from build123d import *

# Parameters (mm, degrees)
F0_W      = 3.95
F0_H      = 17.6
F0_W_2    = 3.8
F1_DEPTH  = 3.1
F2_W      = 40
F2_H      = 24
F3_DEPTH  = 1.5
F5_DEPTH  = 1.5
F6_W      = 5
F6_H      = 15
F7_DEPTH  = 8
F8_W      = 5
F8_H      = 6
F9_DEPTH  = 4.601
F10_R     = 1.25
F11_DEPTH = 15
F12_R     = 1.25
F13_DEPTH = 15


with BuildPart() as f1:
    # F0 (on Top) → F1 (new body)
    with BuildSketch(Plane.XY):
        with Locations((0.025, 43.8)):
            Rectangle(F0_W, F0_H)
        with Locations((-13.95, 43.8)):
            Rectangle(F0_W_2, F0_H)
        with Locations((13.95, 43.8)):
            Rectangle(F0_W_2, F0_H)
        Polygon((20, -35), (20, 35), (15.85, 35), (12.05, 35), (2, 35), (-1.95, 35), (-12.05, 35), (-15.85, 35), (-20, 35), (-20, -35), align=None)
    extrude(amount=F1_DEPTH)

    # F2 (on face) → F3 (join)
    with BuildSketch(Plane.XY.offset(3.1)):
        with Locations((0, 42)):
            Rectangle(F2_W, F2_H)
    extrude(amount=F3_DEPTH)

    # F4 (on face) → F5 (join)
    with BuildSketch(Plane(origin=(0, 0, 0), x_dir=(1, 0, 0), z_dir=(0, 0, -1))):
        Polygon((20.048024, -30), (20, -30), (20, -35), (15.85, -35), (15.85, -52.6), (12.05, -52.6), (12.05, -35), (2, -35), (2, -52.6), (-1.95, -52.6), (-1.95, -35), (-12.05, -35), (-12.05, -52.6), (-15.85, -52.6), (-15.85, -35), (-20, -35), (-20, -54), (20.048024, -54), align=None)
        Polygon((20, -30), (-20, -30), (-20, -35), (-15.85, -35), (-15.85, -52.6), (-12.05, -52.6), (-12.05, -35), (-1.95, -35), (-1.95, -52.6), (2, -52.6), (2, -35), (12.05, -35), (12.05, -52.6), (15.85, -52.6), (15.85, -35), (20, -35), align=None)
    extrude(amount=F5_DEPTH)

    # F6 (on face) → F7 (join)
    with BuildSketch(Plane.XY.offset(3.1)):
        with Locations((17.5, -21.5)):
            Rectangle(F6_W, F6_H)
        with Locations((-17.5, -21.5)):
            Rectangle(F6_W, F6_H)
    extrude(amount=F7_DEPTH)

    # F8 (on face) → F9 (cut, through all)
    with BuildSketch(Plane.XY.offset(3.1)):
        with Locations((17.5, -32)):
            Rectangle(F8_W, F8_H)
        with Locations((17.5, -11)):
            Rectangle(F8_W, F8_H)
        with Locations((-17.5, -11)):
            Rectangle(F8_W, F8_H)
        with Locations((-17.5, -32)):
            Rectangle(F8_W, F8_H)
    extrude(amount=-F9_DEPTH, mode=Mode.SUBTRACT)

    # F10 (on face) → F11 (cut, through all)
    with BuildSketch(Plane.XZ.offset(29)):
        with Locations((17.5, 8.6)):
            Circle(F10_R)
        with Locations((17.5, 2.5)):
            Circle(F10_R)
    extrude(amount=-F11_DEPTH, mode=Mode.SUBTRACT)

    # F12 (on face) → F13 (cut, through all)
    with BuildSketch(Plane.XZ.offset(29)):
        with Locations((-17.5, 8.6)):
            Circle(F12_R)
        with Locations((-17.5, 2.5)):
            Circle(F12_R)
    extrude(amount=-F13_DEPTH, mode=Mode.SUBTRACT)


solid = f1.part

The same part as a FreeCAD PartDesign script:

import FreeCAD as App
import Part
import Sketcher


def add_polygon(sketch, points):
    """Adds a closed chain of lines whose ends are joined by coincident constraints."""
    first, n = sketch.GeometryCount, len(points)
    for a, b in zip(points, points[1:] + points[:1]):
        sketch.addGeometry(Part.LineSegment(App.Vector(*a, 0), App.Vector(*b, 0)), False)
    for i in range(n):
        sketch.addConstraint(Sketcher.Constraint("Coincident", first + i, 2, first + (i + 1) % n, 1))

doc = App.newDocument("Part")
body = doc.addObject("PartDesign::Body", "Body")

# Sketch on XY plane
sketch1 = body.newObject("Sketcher::SketchObject", "Sketch")
sketch1.AttachmentSupport = (doc.getObject("XY_Plane"), [""])
sketch1.MapMode = "FlatFace"
add_polygon(sketch1, [(-1.9, 52.6), (-1.9, 35), (-12.1, 35), (-12.1, 52.6), (-15.8, 52.6), (-15.8, 35), (-20, 35), (-20, -35), (20, -35), (20, 35), (15.8, 35), (15.8, 52.6), (12.1, 52.6), (12.1, 35), (2, 35), (2, 52.6)])  # lines 0-15
sketch1.addConstraint(Sketcher.Constraint("Vertical", 0))
sketch1.addConstraint(Sketcher.Constraint("Horizontal", 1))
sketch1.addConstraint(Sketcher.Constraint("Vertical", 2))
sketch1.addConstraint(Sketcher.Constraint("Horizontal", 3))
sketch1.addConstraint(Sketcher.Constraint("Vertical", 4))
sketch1.addConstraint(Sketcher.Constraint("Horizontal", 5))
sketch1.addConstraint(Sketcher.Constraint("Vertical", 6))
sketch1.addConstraint(Sketcher.Constraint("Horizontal", 7))
sketch1.addConstraint(Sketcher.Constraint("Vertical", 8))
sketch1.addConstraint(Sketcher.Constraint("Horizontal", 9))
sketch1.addConstraint(Sketcher.Constraint("Vertical", 10))
sketch1.addConstraint(Sketcher.Constraint("Horizontal", 11))
sketch1.addConstraint(Sketcher.Constraint("Vertical", 12))
sketch1.addConstraint(Sketcher.Constraint("Horizontal", 13))
sketch1.addConstraint(Sketcher.Constraint("Vertical", 14))
sketch1.addConstraint(Sketcher.Constraint("Horizontal", 15))
sketch1.addConstraint(Sketcher.Constraint("Symmetric", 5, 2, 7, 2, -1, 1))
sketch1.addConstraint(Sketcher.Constraint("Symmetric", 4, 2, 9, 2, -2))
sketch1.addConstraint(Sketcher.Constraint("Symmetric", 2, 2, 11, 2, -2))
sketch1.addConstraint(Sketcher.Constraint("Horizontal", 1, 2, 4, 2))
sketch1.addConstraint(Sketcher.Constraint("Horizontal", 9, 2, 12, 2))
sketch1.addConstraint(Sketcher.Constraint("Horizontal", 11, 2, 14, 2))
sketch1.addConstraint(Sketcher.Constraint("DistanceX", 7, 1, 7, 2, 40.0))
sketch1.addConstraint(Sketcher.Constraint("DistanceY", 6, 2, 6, 1, 70.0))
sketch1.addConstraint(Sketcher.Constraint("DistanceX", 1, 2, 1, 1, 10.1))
sketch1.addConstraint(Sketcher.Constraint("DistanceX", 3, 2, 3, 1, 3.8))
sketch1.addConstraint(Sketcher.Constraint("DistanceY", 0, 2, 0, 1, 17.6))
sketch1.addConstraint(Sketcher.Constraint("DistanceX", -1, 1, 13, 2, 2.0))
sketch1.addConstraint(Sketcher.Constraint("DistanceX", 0, 2, 11, 2, 14.0))
pad1 = body.newObject("PartDesign::Pad", "Pad")
pad1.Profile = sketch1
pad1.Length = 3.1

# Sketch on XY plane
sketch2 = body.newObject("Sketcher::SketchObject", "Sketch001")
sketch2.AttachmentSupport = (doc.getObject("XY_Plane"), [""])
sketch2.MapMode = "FlatFace"
sketch2.AttachmentOffset = App.Placement(App.Vector(0, 0, 3.1), App.Rotation())
add_polygon(sketch2, [(-20, 54), (-20, 30), (20, 30), (20, 54)])  # lines 0-3
sketch2.addConstraint(Sketcher.Constraint("Vertical", 0))
sketch2.addConstraint(Sketcher.Constraint("Horizontal", 1))
sketch2.addConstraint(Sketcher.Constraint("Vertical", 2))
sketch2.addConstraint(Sketcher.Constraint("Horizontal", 3))
sketch2.addConstraint(Sketcher.Constraint("DistanceX", 1, 1, 1, 2, 40.0))
sketch2.addConstraint(Sketcher.Constraint("DistanceY", 0, 2, 0, 1, 24.0))
sketch2.addConstraint(Sketcher.Constraint("DistanceX", 0, 2, -1, 1, 20.0))
sketch2.addConstraint(Sketcher.Constraint("DistanceY", -1, 1, 0, 2, 30.0))
pad2 = body.newObject("PartDesign::Pad", "Pad001")
pad2.Profile = sketch2
pad2.Length = 1.5

# Sketch on XY plane
sketch3 = body.newObject("Sketcher::SketchObject", "Sketch002")
sketch3.AttachmentSupport = (doc.getObject("XY_Plane"), [""])
sketch3.MapMode = "FlatFace"
add_polygon(sketch3, [(20, 30), (-20, 30), (-20, 54), (20, 54)])  # lines 0-3
sketch3.addConstraint(Sketcher.Constraint("Horizontal", 0))
sketch3.addConstraint(Sketcher.Constraint("Vertical", 1))
sketch3.addConstraint(Sketcher.Constraint("Horizontal", 2))
sketch3.addConstraint(Sketcher.Constraint("Vertical", 3))
sketch3.addConstraint(Sketcher.Constraint("DistanceY", 1, 1, 1, 2, 24.0))
sketch3.addConstraint(Sketcher.Constraint("DistanceX", 0, 2, -1, 1, 20.0))
sketch3.addConstraint(Sketcher.Constraint("DistanceY", -1, 1, 0, 2, 30.0))
sketch3.addConstraint(Sketcher.Constraint("DistanceX", 0, 2, 0, 1, 40.048024))
pad3 = body.newObject("PartDesign::Pad", "Pad002")
pad3.Profile = sketch3
pad3.Length = 1.5
pad3.Reversed = True

# Sketch on XY plane
sketch4 = body.newObject("Sketcher::SketchObject", "Sketch003")
sketch4.AttachmentSupport = (doc.getObject("XY_Plane"), [""])
sketch4.MapMode = "FlatFace"
sketch4.AttachmentOffset = App.Placement(App.Vector(0, 0, 3.1), App.Rotation())
add_polygon(sketch4, [(15, -14), (15, -29), (20, -29), (20, -14)])  # lines 0-3
add_polygon(sketch4, [(-20, -14), (-20, -29), (-15, -29), (-15, -14)])  # lines 4-7
sketch4.addConstraint(Sketcher.Constraint("Vertical", 0))
sketch4.addConstraint(Sketcher.Constraint("Horizontal", 1))
sketch4.addConstraint(Sketcher.Constraint("Vertical", 2))
sketch4.addConstraint(Sketcher.Constraint("Horizontal", 3))
sketch4.addConstraint(Sketcher.Constraint("Vertical", 4))
sketch4.addConstraint(Sketcher.Constraint("Horizontal", 5))
sketch4.addConstraint(Sketcher.Constraint("Vertical", 6))
sketch4.addConstraint(Sketcher.Constraint("Horizontal", 7))
sketch4.addConstraint(Sketcher.Constraint("Symmetric", 1, 2, 4, 2, -2))
sketch4.addConstraint(Sketcher.Constraint("Symmetric", 3, 2, 6, 2, -2))
sketch4.addConstraint(Sketcher.Constraint("DistanceX", 1, 1, 1, 2, 5.0))
sketch4.addConstraint(Sketcher.Constraint("DistanceY", 0, 2, 0, 1, 15.0))
sketch4.addConstraint(Sketcher.Constraint("DistanceX", -1, 1, 0, 2, 15.0))
sketch4.addConstraint(Sketcher.Constraint("DistanceY", 0, 2, -1, 1, 29.0))
pad4 = body.newObject("PartDesign::Pad", "Pad003")
pad4.Profile = sketch4
pad4.Length = 8

# Sketch on XY plane
sketch5 = body.newObject("Sketcher::SketchObject", "Sketch004")
sketch5.AttachmentSupport = (doc.getObject("XY_Plane"), [""])
sketch5.MapMode = "FlatFace"
sketch5.AttachmentOffset = App.Placement(App.Vector(0, 0, 3.1), App.Rotation())
add_polygon(sketch5, [(15, -29), (15, -35), (20, -35), (20, -29)])  # lines 0-3
add_polygon(sketch5, [(15, -8), (15, -14), (20, -14), (20, -8)])  # lines 4-7
add_polygon(sketch5, [(-20, -8), (-20, -14), (-15, -14), (-15, -8)])  # lines 8-11
add_polygon(sketch5, [(-20, -29), (-20, -35), (-15, -35), (-15, -29)])  # lines 12-15
sketch5.addConstraint(Sketcher.Constraint("Vertical", 0))
sketch5.addConstraint(Sketcher.Constraint("Horizontal", 1))
sketch5.addConstraint(Sketcher.Constraint("Vertical", 2))
sketch5.addConstraint(Sketcher.Constraint("Horizontal", 3))
sketch5.addConstraint(Sketcher.Constraint("Vertical", 4))
sketch5.addConstraint(Sketcher.Constraint("Horizontal", 5))
sketch5.addConstraint(Sketcher.Constraint("Vertical", 6))
sketch5.addConstraint(Sketcher.Constraint("Horizontal", 7))
sketch5.addConstraint(Sketcher.Constraint("Vertical", 8))
sketch5.addConstraint(Sketcher.Constraint("Horizontal", 9))
sketch5.addConstraint(Sketcher.Constraint("Vertical", 10))
sketch5.addConstraint(Sketcher.Constraint("Horizontal", 11))
sketch5.addConstraint(Sketcher.Constraint("Vertical", 12))
sketch5.addConstraint(Sketcher.Constraint("Horizontal", 13))
sketch5.addConstraint(Sketcher.Constraint("Vertical", 14))
sketch5.addConstraint(Sketcher.Constraint("Horizontal", 15))
sketch5.addConstraint(Sketcher.Constraint("Symmetric", 5, 2, 8, 2, -2))
sketch5.addConstraint(Sketcher.Constraint("Symmetric", 7, 2, 10, 2, -2))
sketch5.addConstraint(Sketcher.Constraint("Symmetric", 1, 2, 12, 2, -2))
sketch5.addConstraint(Sketcher.Constraint("Symmetric", 3, 2, 14, 2, -2))
sketch5.addConstraint(Sketcher.Constraint("Vertical", 3, 2, 4, 2))
sketch5.addConstraint(Sketcher.Constraint("Vertical", 2, 2, 5, 2))
sketch5.addConstraint(Sketcher.Constraint("Equal", 2, 4))
sketch5.addConstraint(Sketcher.Constraint("DistanceX", 1, 1, 1, 2, 5.0))
sketch5.addConstraint(Sketcher.Constraint("DistanceY", 0, 2, 0, 1, 6.0))
sketch5.addConstraint(Sketcher.Constraint("DistanceX", -1, 1, 0, 2, 15.0))
sketch5.addConstraint(Sketcher.Constraint("DistanceY", 0, 2, -1, 1, 35.0))
sketch5.addConstraint(Sketcher.Constraint("DistanceY", 4, 2, -1, 1, 14.0))
pocket1 = body.newObject("PartDesign::Pocket", "Pocket")
pocket1.Profile = sketch5
pocket1.Type = "ThroughAll"

# Sketch on XZ plane
sketch6 = body.newObject("Sketcher::SketchObject", "Sketch005")
sketch6.AttachmentSupport = (doc.getObject("XZ_Plane"), [""])
sketch6.MapMode = "FlatFace"
sketch6.AttachmentOffset = App.Placement(App.Vector(0, 0, 29), App.Rotation())
sketch6.addGeometry(Part.Circle(App.Vector(17.5, 8.6, 0), App.Vector(0, 0, 1), 1.2), False)
sketch6.addGeometry(Part.Circle(App.Vector(17.5, 2.5, 0), App.Vector(0, 0, 1), 1.2), False)
sketch6.addConstraint(Sketcher.Constraint("Equal", 0, 1))
sketch6.addConstraint(Sketcher.Constraint("Vertical", 0, 3, 1, 3))
sketch6.addConstraint(Sketcher.Constraint("Diameter", 0, 2.5))
sketch6.addConstraint(Sketcher.Constraint("DistanceX", -1, 1, 0, 3, 17.5))
sketch6.addConstraint(Sketcher.Constraint("DistanceY", -1, 1, 0, 3, 8.6))
sketch6.addConstraint(Sketcher.Constraint("DistanceY", -1, 1, 1, 3, 2.5))
pocket2 = body.newObject("PartDesign::Pocket", "Pocket001")
pocket2.Profile = sketch6
pocket2.Length = 15

# Sketch on XZ plane
sketch7 = body.newObject("Sketcher::SketchObject", "Sketch006")
sketch7.AttachmentSupport = (doc.getObject("XZ_Plane"), [""])
sketch7.MapMode = "FlatFace"
sketch7.AttachmentOffset = App.Placement(App.Vector(0, 0, 29), App.Rotation())
sketch7.addGeometry(Part.Circle(App.Vector(-17.5, 8.6, 0), App.Vector(0, 0, 1), 1.2), False)
sketch7.addGeometry(Part.Circle(App.Vector(-17.5, 2.5, 0), App.Vector(0, 0, 1), 1.2), False)
sketch7.addConstraint(Sketcher.Constraint("Equal", 0, 1))
sketch7.addConstraint(Sketcher.Constraint("Vertical", 0, 3, 1, 3))
sketch7.addConstraint(Sketcher.Constraint("Diameter", 0, 2.5))
sketch7.addConstraint(Sketcher.Constraint("DistanceX", 0, 3, -1, 1, 17.5))
sketch7.addConstraint(Sketcher.Constraint("DistanceY", -1, 1, 0, 3, 8.6))
sketch7.addConstraint(Sketcher.Constraint("DistanceY", -1, 1, 1, 3, 2.5))
pocket3 = body.newObject("PartDesign::Pocket", "Pocket002")
pocket3.Profile = sketch7
pocket3.Length = 15

doc.recompute()
